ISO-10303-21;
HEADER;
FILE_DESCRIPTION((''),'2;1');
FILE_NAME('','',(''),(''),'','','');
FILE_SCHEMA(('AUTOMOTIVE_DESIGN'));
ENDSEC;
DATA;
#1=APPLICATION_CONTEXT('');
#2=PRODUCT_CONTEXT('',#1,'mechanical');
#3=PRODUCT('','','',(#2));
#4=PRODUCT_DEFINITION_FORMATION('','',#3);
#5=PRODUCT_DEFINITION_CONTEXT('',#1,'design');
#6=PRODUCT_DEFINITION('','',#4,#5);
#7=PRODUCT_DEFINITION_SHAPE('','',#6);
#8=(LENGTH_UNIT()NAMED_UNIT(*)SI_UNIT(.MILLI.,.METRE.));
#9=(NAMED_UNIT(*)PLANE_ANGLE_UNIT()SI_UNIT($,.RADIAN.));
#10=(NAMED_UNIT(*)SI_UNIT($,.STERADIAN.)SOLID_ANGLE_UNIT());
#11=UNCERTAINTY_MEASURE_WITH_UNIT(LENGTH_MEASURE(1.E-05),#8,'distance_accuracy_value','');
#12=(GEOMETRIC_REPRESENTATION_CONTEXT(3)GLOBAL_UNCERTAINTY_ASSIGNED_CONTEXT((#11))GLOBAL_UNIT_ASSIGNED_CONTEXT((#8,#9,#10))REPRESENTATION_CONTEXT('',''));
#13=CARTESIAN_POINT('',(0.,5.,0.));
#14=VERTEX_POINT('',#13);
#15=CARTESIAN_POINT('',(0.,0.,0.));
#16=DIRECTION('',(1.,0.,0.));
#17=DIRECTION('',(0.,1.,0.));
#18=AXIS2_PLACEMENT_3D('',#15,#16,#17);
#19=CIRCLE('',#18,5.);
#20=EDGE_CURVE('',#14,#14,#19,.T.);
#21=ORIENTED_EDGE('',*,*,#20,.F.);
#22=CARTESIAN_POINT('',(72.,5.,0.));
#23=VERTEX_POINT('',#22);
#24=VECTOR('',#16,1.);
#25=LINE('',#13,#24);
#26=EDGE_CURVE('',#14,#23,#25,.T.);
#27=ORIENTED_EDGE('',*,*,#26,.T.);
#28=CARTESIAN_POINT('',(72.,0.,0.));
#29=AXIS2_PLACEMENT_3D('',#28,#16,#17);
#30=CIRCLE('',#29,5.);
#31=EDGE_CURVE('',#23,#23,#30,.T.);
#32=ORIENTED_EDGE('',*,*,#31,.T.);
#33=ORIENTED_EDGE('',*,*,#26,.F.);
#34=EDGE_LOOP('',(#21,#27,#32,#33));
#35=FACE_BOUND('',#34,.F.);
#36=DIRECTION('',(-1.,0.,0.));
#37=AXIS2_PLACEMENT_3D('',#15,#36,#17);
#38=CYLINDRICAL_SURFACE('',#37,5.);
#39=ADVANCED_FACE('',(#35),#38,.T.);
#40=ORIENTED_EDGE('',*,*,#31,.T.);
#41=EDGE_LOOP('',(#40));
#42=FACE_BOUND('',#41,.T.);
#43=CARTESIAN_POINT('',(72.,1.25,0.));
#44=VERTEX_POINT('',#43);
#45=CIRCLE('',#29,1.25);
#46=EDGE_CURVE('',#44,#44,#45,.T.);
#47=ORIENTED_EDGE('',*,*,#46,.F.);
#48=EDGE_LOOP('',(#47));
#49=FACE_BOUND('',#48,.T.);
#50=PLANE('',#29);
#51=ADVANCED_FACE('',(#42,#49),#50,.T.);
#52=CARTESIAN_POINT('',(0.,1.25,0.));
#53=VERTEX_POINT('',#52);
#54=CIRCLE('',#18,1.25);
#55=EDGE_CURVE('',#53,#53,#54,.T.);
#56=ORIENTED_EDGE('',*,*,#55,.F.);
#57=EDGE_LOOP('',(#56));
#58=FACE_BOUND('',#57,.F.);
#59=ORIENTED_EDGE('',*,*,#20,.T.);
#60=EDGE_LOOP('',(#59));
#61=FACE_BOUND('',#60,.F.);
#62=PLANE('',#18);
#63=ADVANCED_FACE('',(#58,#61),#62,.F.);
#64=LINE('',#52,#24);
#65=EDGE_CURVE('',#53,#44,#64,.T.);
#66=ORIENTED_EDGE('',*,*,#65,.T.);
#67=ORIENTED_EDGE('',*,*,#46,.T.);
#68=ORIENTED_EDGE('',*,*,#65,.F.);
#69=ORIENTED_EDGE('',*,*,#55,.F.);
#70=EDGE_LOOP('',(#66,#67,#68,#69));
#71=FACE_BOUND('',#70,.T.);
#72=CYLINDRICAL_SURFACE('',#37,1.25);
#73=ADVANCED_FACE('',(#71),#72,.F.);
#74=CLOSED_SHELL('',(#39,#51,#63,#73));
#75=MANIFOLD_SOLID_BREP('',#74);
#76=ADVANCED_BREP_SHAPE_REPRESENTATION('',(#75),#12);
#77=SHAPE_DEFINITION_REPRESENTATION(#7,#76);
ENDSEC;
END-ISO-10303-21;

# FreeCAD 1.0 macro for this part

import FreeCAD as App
import Part
import Sketcher

V = App.Vector
Q = App.Units.Quantity

doc = App.newDocument("Part")
body = doc.addObject("PartDesign::Body", "Body")

# Sketch on YZ plane
sketch1 = body.newObject("Sketcher::SketchObject", "Sketch")
sketch1.AttachmentSupport = (doc.getObject("YZ_Plane"), [""])
sketch1.MapMode = "FlatFace"
sketch1.addGeometry(Part.Circle(V(0, 0, 0), V(0, 0, 1), 5), False)
sketch1.addGeometry(Part.Circle(V(0, 0, 0), V(0, 0, 1), 1.2), False)
sketch1.addConstraint(Sketcher.Constraint("Coincident", 0, 3, -1, 1))
sketch1.addConstraint(Sketcher.Constraint("Coincident", 1, 3, -1, 1))
sketch1.addConstraint(Sketcher.Constraint("Diameter", 0, Q("10 mm")))
sketch1.addConstraint(Sketcher.Constraint("Diameter", 1, Q("2.5 mm")))
pad1 = body.newObject("PartDesign::Pad", "Pad")
pad1.Profile = sketch1
pad1.Length = 72

doc.recompute()
